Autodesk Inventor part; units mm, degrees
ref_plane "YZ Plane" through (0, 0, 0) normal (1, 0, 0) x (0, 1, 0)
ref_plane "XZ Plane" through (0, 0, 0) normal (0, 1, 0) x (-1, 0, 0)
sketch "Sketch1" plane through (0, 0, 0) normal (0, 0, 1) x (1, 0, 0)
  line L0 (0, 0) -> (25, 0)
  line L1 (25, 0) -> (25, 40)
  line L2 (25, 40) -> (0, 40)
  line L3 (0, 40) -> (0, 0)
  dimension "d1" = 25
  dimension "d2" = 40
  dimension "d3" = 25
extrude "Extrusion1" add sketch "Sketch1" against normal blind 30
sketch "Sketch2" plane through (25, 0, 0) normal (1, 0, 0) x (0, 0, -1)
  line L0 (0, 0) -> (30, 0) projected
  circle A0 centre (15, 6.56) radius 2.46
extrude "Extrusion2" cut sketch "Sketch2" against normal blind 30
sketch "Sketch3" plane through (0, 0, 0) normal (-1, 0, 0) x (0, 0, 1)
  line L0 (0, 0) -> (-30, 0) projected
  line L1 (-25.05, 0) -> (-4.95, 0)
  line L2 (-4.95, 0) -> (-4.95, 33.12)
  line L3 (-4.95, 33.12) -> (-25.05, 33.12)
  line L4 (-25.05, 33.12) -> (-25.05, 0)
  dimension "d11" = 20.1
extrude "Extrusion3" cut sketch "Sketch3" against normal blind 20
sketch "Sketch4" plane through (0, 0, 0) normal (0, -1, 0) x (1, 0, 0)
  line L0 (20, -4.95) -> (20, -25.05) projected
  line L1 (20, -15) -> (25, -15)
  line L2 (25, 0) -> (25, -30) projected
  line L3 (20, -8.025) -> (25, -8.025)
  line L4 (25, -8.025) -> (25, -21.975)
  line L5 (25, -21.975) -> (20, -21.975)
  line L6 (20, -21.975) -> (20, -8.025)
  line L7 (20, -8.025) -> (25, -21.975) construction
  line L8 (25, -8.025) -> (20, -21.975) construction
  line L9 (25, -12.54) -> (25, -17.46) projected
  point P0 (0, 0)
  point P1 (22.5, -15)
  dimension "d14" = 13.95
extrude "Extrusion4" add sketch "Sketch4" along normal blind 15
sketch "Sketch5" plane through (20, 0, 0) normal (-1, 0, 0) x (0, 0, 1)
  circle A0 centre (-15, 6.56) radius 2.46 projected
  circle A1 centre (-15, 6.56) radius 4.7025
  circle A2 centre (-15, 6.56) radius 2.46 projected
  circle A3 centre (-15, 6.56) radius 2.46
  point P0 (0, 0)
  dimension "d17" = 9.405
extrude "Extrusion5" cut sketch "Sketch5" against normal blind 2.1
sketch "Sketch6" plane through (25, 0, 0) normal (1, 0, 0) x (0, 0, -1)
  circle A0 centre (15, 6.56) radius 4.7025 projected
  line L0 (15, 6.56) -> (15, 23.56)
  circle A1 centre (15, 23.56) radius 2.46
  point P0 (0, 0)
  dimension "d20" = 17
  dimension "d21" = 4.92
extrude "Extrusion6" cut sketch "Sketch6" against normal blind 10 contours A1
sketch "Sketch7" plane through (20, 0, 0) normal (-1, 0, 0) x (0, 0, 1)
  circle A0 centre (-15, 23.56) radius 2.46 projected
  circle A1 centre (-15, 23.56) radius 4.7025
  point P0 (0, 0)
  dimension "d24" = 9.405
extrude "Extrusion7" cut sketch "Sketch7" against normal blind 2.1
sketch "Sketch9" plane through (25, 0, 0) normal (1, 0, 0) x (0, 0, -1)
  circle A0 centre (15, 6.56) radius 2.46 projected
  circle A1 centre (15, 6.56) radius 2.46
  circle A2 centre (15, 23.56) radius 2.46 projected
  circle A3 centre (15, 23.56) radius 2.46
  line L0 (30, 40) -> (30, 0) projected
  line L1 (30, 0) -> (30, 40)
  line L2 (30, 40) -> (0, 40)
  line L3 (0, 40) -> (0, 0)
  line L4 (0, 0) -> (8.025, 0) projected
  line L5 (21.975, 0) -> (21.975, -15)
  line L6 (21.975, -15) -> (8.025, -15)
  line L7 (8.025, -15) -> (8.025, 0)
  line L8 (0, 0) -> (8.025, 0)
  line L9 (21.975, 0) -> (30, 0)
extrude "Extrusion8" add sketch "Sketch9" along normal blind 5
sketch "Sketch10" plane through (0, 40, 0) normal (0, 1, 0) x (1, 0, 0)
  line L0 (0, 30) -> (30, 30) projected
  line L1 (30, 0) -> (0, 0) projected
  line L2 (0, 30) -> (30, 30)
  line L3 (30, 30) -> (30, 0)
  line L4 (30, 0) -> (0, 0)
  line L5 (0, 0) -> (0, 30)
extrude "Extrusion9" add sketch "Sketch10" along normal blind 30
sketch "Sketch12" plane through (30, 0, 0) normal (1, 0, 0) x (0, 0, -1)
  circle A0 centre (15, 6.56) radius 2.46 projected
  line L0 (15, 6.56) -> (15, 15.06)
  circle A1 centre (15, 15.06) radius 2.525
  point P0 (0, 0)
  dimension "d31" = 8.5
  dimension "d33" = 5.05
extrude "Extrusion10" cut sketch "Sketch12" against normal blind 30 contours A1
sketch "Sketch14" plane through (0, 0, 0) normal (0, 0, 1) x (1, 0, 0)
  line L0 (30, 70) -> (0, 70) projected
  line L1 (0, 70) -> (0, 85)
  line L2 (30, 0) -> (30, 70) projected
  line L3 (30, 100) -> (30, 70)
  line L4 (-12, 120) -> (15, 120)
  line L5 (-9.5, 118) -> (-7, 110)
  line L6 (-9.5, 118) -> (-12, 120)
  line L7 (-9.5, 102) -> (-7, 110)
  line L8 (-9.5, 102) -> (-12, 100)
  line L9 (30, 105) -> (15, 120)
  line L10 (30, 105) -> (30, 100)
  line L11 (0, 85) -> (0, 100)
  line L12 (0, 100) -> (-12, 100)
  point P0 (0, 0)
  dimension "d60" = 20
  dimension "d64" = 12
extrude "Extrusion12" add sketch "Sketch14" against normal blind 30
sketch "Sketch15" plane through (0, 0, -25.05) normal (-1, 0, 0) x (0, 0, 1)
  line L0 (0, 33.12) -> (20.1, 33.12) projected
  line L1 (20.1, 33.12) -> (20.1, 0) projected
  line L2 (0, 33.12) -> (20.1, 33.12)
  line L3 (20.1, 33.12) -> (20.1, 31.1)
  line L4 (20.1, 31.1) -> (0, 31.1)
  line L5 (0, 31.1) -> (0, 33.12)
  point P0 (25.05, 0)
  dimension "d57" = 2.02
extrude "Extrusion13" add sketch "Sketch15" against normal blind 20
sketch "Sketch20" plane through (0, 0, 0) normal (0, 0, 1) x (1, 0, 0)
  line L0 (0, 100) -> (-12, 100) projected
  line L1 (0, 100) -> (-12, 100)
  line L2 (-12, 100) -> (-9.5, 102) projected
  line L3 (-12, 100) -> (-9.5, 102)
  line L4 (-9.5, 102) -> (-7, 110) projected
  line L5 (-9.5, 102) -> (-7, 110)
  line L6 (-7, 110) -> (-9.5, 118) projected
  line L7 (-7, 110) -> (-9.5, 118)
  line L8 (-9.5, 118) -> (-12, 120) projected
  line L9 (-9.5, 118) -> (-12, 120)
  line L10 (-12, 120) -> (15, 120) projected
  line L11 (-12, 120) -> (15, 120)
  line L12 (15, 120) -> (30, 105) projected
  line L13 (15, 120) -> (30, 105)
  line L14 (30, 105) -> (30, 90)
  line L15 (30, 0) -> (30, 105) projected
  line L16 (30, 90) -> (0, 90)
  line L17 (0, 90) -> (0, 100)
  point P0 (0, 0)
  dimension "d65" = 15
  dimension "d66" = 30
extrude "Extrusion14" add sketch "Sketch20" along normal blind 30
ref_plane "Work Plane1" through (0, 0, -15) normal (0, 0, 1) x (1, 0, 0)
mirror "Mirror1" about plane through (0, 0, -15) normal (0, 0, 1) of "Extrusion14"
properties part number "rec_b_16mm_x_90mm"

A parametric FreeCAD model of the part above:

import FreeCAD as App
import Part
import Sketcher

doc = App.newDocument("Part")
body = doc.addObject("PartDesign::Body", "Body")

sketch1 = doc.addObject("Sketcher::SketchObject", "Sketch")
body.addObject(sketch1)
sketch1.AttachmentSupport = (doc.XY_Plane, [""])
sketch1.MapMode = "FlatFace"
sketch1.addGeometry([
    Part.LineSegment(App.Vector(0, 40, 0), App.Vector(0, 0, 0)),
    Part.LineSegment(App.Vector(0, 0, 0), App.Vector(25, 0, 0)),
    Part.LineSegment(App.Vector(25, 0, 0), App.Vector(25, 40, 0)),
    Part.LineSegment(App.Vector(25, 40, 0), App.Vector(0, 40, 0)),
], False)
sketch1.addConstraint([
    Sketcher.Constraint("Coincident", 0, 2, 1, 1),
    Sketcher.Constraint("Coincident", 1, 2, 2, 1),
    Sketcher.Constraint("Coincident", 2, 2, 3, 1),
    Sketcher.Constraint("Coincident", 3, 2, 0, 1),
    Sketcher.Constraint("Vertical", 0),
    Sketcher.Constraint("Horizontal", 1),
    Sketcher.Constraint("Vertical", 2),
    Sketcher.Constraint("Horizontal", 3),
    Sketcher.Constraint("Coincident", 0, 2, -1, 1),
    Sketcher.Constraint("DistanceX", 1, 1, 1, 2, 25.0),
    Sketcher.Constraint("DistanceY", 0, 2, 0, 1, 40.0),
])
pad1 = doc.addObject("PartDesign::Pad", "Pad")
body.addObject(pad1)
pad1.Profile = sketch1
pad1.Length = 30
pad1.Reversed = True

sketch2 = doc.addObject("Sketcher::SketchObject", "Sketch001")
body.addObject(sketch2)
sketch2.AttachmentSupport = (doc.YZ_Plane, [""])
sketch2.MapMode = "FlatFace"
sketch2.AttachmentOffset = App.Placement(App.Vector(0, 0, 25), App.Rotation())
sketch2.addGeometry(Part.Circle(App.Vector(6.6, -15, 0), App.Vector(0, 0, 1), 2.5), False)
sketch2.addConstraint([
    Sketcher.Constraint("Diameter", 0, 4.92),
    Sketcher.Constraint("DistanceY", 0, 3, -1, 1, 15.0),
    Sketcher.Constraint("DistanceX", -1, 1, 0, 3, 6.56),
])
pocket1 = doc.addObject("PartDesign::Pocket", "Pocket")
body.addObject(pocket1)
pocket1.Profile = sketch2
pocket1.Length = 30

sketch3 = doc.addObject("Sketcher::SketchObject", "Sketch002")
body.addObject(sketch3)
sketch3.AttachmentSupport = (doc.YZ_Plane, [""])
sketch3.MapMode = "FlatFace"
sketch3.addGeometry([
    Part.LineSegment(App.Vector(0, -25, 0), App.Vector(0, -5, 0)),
    Part.LineSegment(App.Vector(0, -5, 0), App.Vector(33, -5, 0)),
    Part.LineSegment(App.Vector(33, -5, 0), App.Vector(33, -25, 0)),
    Part.LineSegment(App.Vector(33, -25, 0), App.Vector(0, -25, 0)),
], False)
sketch3.addConstraint([
    Sketcher.Constraint("Coincident", 0, 2, 1, 1),
    Sketcher.Constraint("Coincident", 1, 2, 2, 1),
    Sketcher.Constraint("Coincident", 2, 2, 3, 1),
    Sketcher.Constraint("Coincident", 3, 2, 0, 1),
    Sketcher.Constraint("Vertical", 0),
    Sketcher.Constraint("Horizontal", 1),
    Sketcher.Constraint("Vertical", 2),
    Sketcher.Constraint("Horizontal", 3),
    Sketcher.Constraint("PointOnObject", 0, 2, -2),
    Sketcher.Constraint("DistanceY", 0, 1, 0, 2, 20.1),
    Sketcher.Constraint("DistanceX", 1, 1, 1, 2, 33.12),
    Sketcher.Constraint("DistanceY", 0, 2, -1, 1, 4.95),
])
pocket2 = doc.addObject("PartDesign::Pocket", "Pocket001")
body.addObject(pocket2)
pocket2.Profile = sketch3
pocket2.Length = 20
pocket2.Reversed = True

sketch4 = doc.addObject("Sketcher::SketchObject", "Sketch003")
body.addObject(sketch4)
sketch4.AttachmentSupport = (doc.XZ_Plane, [""])
sketch4.MapMode = "FlatFace"
sketch4.addGeometry([
    Part.LineSegment(App.Vector(25, -8, 0), App.Vector(20, -8, 0)),
    Part.LineSegment(App.Vector(20, -8, 0), App.Vector(20, -22, 0)),
    Part.LineSegment(App.Vector(20, -22, 0), App.Vector(25, -22, 0)),
    Part.LineSegment(App.Vector(25, -22, 0), App.Vector(25, -8, 0)),
], False)
sketch4.addConstraint([
    Sketcher.Constraint("Coincident", 0, 2, 1, 1),
    Sketcher.Constraint("Coincident", 1, 2, 2, 1),
    Sketcher.Constraint("Coincident", 2, 2, 3, 1),
    Sketcher.Constraint("Coincident", 3, 2, 0, 1),
    Sketcher.Constraint("Horizontal", 0),
    Sketcher.Constraint("Vertical", 1),
    Sketcher.Constraint("Horizontal", 2),
    Sketcher.Constraint("Vertical", 3),
    Sketcher.Constraint("DistanceY", 1, 2, 1, 1, 13.95),
    Sketcher.Constraint("DistanceX", 0, 2, 0, 1, 5.0),
    Sketcher.Constraint("DistanceX", -1, 1, 0, 2, 20.0),
    Sketcher.Constraint("DistanceY", 0, 2, -1, 1, 8.025),
])
pad2 = doc.addObject("PartDesign::Pad", "Pad001")
body.addObject(pad2)
pad2.Profile = sketch4
pad2.Length = 15

sketch5 = doc.addObject("Sketcher::SketchObject", "Sketch004")
body.addObject(sketch5)
sketch5.AttachmentSupport = (doc.YZ_Plane, [""])
sketch5.MapMode = "FlatFace"
sketch5.AttachmentOffset = App.Placement(App.Vector(0, 0, 20), App.Rotation())
sketch5.addGeometry([
    Part.Circle(App.Vector(6.6, -15, 0), App.Vector(0, 0, 1), 4.7),
    Part.Circle(App.Vector(6.6, -15, 0), App.Vector(0, 0, 1), 2.5),
], False)
sketch5.addConstraint([
    Sketcher.Constraint("Coincident", 1, 3, 0, 3),
    Sketcher.Constraint("Diameter", 0, 9.405),
    Sketcher.Constraint("Diameter", 1, 4.92),
    Sketcher.Constraint("DistanceY", 0, 3, -1, 1, 15.0),
    Sketcher.Constraint("DistanceX", -1, 1, 0, 3, 6.56),
])
pocket3 = doc.addObject("PartDesign::Pocket", "Pocket002")
body.addObject(pocket3)
pocket3.Profile = sketch5
pocket3.Length = 2.1
pocket3.Reversed = True

sketch6 = doc.addObject("Sketcher::SketchObject", "Sketch005")
body.addObject(sketch6)
sketch6.AttachmentSupport = (doc.YZ_Plane, [""])
sketch6.MapMode = "FlatFace"
sketch6.AttachmentOffset = App.Placement(App.Vector(0, 0, 25), App.Rotation())
sketch6.addGeometry(Part.Circle(App.Vector(23.6, -15, 0), App.Vector(0, 0, 1), 2.5), False)
sketch6.addConstraint([
    Sketcher.Constraint("Diameter", 0, 4.92),
    Sketcher.Constraint("DistanceY", 0, 3, -1, 1, 15.0),
    Sketcher.Constraint("DistanceX", -1, 1, 0, 3, 23.56),
])
pocket4 = doc.addObject("PartDesign::Pocket", "Pocket003")
body.addObject(pocket4)
pocket4.Profile = sketch6
pocket4.Length = 10

sketch7 = doc.addObject("Sketcher::SketchObject", "Sketch006")
body.addObject(sketch7)
sketch7.AttachmentSupport = (doc.YZ_Plane, [""])
sketch7.MapMode = "FlatFace"
sketch7.AttachmentOffset = App.Placement(App.Vector(0, 0, 20), App.Rotation())
sketch7.addGeometry([
    Part.Circle(App.Vector(23.6, -15, 0), App.Vector(0, 0, 1), 4.7),
    Part.Circle(App.Vector(23.6, -15, 0), App.Vector(0, 0, 1), 2.5),
], False)
sketch7.addConstraint([
    Sketcher.Constraint("Coincident", 1, 3, 0, 3),
    Sketcher.Constraint("Diameter", 0, 9.405),
    Sketcher.Constraint("Diameter", 1, 4.92),
    Sketcher.Constraint("DistanceY", 0, 3, -1, 1, 15.0),
    Sketcher.Constraint("DistanceX", -1, 1, 0, 3, 23.56),
])
pocket5 = doc.addObject("PartDesign::Pocket", "Pocket004")
body.addObject(pocket5)
pocket5.Profile = sketch7
pocket5.Length = 2.1
pocket5.Reversed = True

sketch8 = doc.addObject("Sketcher::SketchObject", "Sketch007")
body.addObject(sketch8)
sketch8.AttachmentSupport = (doc.YZ_Plane, [""])
sketch8.MapMode = "FlatFace"
sketch8.AttachmentOffset = App.Placement(App.Vector(0, 0, 25), App.Rotation())
sketch8.addGeometry([
    Part.LineSegment(App.Vector(0, -30, 0), App.Vector(40, -30, 0)),
    Part.LineSegment(App.Vector(40, -30, 0), App.Vector(40, 0, 0)),
    Part.LineSegment(App.Vector(40, 0, 0), App.Vector(0, 0, 0)),
    Part.LineSegment(App.Vector(0, 0, 0), App.Vector(0, -8, 0)),
    Part.LineSegment(App.Vector(0, -8, 0), App.Vector(-15, -8, 0)),
    Part.LineSegment(App.Vector(-15, -8, 0), App.Vector(-15, -22, 0)),
    Part.LineSegment(App.Vector(-15, -22, 0), App.Vector(0, -22, 0)),
    Part.LineSegment(App.Vector(0, -22, 0), App.Vector(0, -30, 0)),
    Part.Circle(App.Vector(6.6, -15, 0), App.Vector(0, 0, 1), 2.5),
    Part.Circle(App.Vector(23.6, -15, 0), App.Vector(0, 0, 1), 2.5),
], False)
sketch8.addConstraint([
    Sketcher.Constraint("Coincident", 0, 2, 1, 1),
    Sketcher.Constraint("Coincident", 1, 2, 2, 1),
    Sketcher.Constraint("Coincident", 2, 2, 3, 1),
    Sketcher.Constraint("Coincident", 3, 2, 4, 1),
    Sketcher.Constraint("Coincident", 4, 2, 5, 1),
    Sketcher.Constraint("Coincident", 5, 2, 6, 1),
    Sketcher.Constraint("Coincident", 6, 2, 7, 1),
    Sketcher.Constraint("Coincident", 7, 2, 0, 1),
    Sketcher.Constraint("Horizontal", 0),
    Sketcher.Constraint("Vertical", 1),
    Sketcher.Constraint("Horizontal", 2),
    Sketcher.Constraint("Vertical", 3),
    Sketcher.Constraint("Horizontal", 4),
    Sketcher.Constraint("Vertical", 5),
    Sketcher.Constraint("Horizontal", 6),
    Sketcher.Constraint("Vertical", 7),
    Sketcher.Constraint("Coincident", 2, 2, -1, 1),
    Sketcher.Constraint("Equal", 8, 9),
    Sketcher.Constraint("PointOnObject", 6, 2, -2),
    Sketcher.Constraint("Horizontal", 8, 3, 9, 3),
    Sketcher.Constraint("Equal", 3, 7),
    Sketcher.Constraint("Diameter", 8, 4.92),
    Sketcher.Constraint("DistanceX", 0, 1, 0, 2, 40.0),
    Sketcher.Constraint("DistanceX", 4, 2, 4, 1, 15.0),
    Sketcher.Constraint("DistanceY", 1, 1, 1, 2, 30.0),
    Sketcher.Constraint("DistanceY", 8, 3, -1, 1, 15.0),
    Sketcher.Constraint("DistanceX", 8, 3, 9, 3, 17.0),
    Sketcher.Constraint("DistanceY", 5, 2, 5, 1, 13.95),
    Sketcher.Constraint("DistanceX", -1, 1, 8, 3, 6.56),
])
pad3 = doc.addObject("PartDesign::Pad", "Pad002")
body.addObject(pad3)
pad3.Profile = sketch8
pad3.Length = 5

sketch9 = doc.addObject("Sketcher::SketchObject", "Sketch008")
body.addObject(sketch9)
sketch9.AttachmentSupport = (doc.XZ_Plane, [""])
sketch9.MapMode = "FlatFace"
sketch9.AttachmentOffset = App.Placement(App.Vector(0, 0, -40), App.Rotation())
sketch9.addGeometry([
    Part.LineSegment(App.Vector(30, -30, 0), App.Vector(0, -30, 0)),
    Part.LineSegment(App.Vector(0, -30, 0), App.Vector(0, 0, 0)),
    Part.LineSegment(App.Vector(0, 0, 0), App.Vector(30, 0, 0)),
    Part.LineSegment(App.Vector(30, 0, 0), App.Vector(30, -30, 0)),
], False)
sketch9.addConstraint([
    Sketcher.Constraint("Coincident", 0, 2, 1, 1),
    Sketcher.Constraint("Coincident", 1, 2, 2, 1),
    Sketcher.Constraint("Coincident", 2, 2, 3, 1),
    Sketcher.Constraint("Coincident", 3, 2, 0, 1),
    Sketcher.Constraint("Horizontal", 0),
    Sketcher.Constraint("Vertical", 1),
    Sketcher.Constraint("Horizontal", 2),
    Sketcher.Constraint("Vertical", 3),
    Sketcher.Constraint("Coincident", 1, 2, -1, 1),
    Sketcher.Constraint("Equal", 2, 1),
    Sketcher.Constraint("DistanceX", 0, 2, 0, 1, 30.0),
])
pad4 = doc.addObject("PartDesign::Pad", "Pad003")
body.addObject(pad4)
pad4.Profile = sketch9
pad4.Length = 30
pad4.Reversed = True

sketch10 = doc.addObject("Sketcher::SketchObject", "Sketch009")
body.addObject(sketch10)
sketch10.AttachmentSupport = (doc.YZ_Plane, [""])
sketch10.MapMode = "FlatFace"
sketch10.AttachmentOffset = App.Placement(App.Vector(0, 0, 30), App.Rotation())
sketch10.addGeometry(Part.Circle(App.Vector(15.1, -15, 0), App.Vector(0, 0, 1), 2.5), False)
sketch10.addConstraint([
    Sketcher.Constraint("Diameter", 0, 5.05),
    Sketcher.Constraint("DistanceY", 0, 3, -1, 1, 15.0),
    Sketcher.Constraint("DistanceX", -1, 1, 0, 3, 15.06),
])
pocket6 = doc.addObject("PartDesign::Pocket", "Pocket005")
body.addObject(pocket6)
pocket6.Profile = sketch10
pocket6.Length = 30

sketch11 = doc.addObject("Sketcher::SketchObject", "Sketch010")
body.addObject(sketch11)
sketch11.AttachmentSupport = (doc.XY_Plane, [""])
sketch11.MapMode = "FlatFace"
sketch11.addGeometry([
    Part.LineSegment(App.Vector(0, 70, 0), App.Vector(30, 70, 0)),
    Part.LineSegment(App.Vector(30, 70, 0), App.Vector(30, 105, 0)),
    Part.LineSegment(App.Vector(30, 105, 0), App.Vector(15, 120, 0)),
    Part.LineSegment(App.Vector(15, 120, 0), App.Vector(-12, 120, 0)),
    Part.LineSegment(App.Vector(-12, 120, 0), App.Vector(-9.5, 118, 0)),
    Part.LineSegment(App.Vector(-9.5, 118, 0), App.Vector(-7, 110, 0)),
    Part.LineSegment(App.Vector(-7, 110, 0), App.Vector(-9.5, 102, 0)),
    Part.LineSegment(App.Vector(-9.5, 102, 0), App.Vector(-12, 100, 0)),
    Part.LineSegment(App.Vector(-12, 100, 0), App.Vector(0, 100, 0)),
    Part.LineSegment(App.Vector(0, 100, 0), App.Vector(0, 70, 0)),
], False)
sketch11.addConstraint([
    Sketcher.Constraint("Coincident", 0, 2, 1, 1),
    Sketcher.Constraint("Coincident", 1, 2, 2, 1),
    Sketcher.Constraint("Coincident", 2, 2, 3, 1),
    Sketcher.Constraint("Coincident", 3, 2, 4, 1),
    Sketcher.Constraint("Coincident", 4, 2, 5, 1),
    Sketcher.Constraint("Coincident", 5, 2, 6, 1),
    Sketcher.Constraint("Coincident", 6, 2, 7, 1),
    Sketcher.Constraint("Coincident", 7, 2, 8, 1),
    Sketcher.Constraint("Coincident", 8, 2, 9, 1),
    Sketcher.Constraint("Coincident", 9, 2, 0, 1),
    Sketcher.Constraint("Horizontal", 0),
    Sketcher.Constraint("Vertical", 1),
    Sketcher.Constraint("Horizontal", 3),
    Sketcher.Constraint("Horizontal", 8),
    Sketcher.Constraint("Vertical", 9),
    Sketcher.Constraint("PointOnObject", 8, 2, -2),
    Sketcher.Constraint("Vertical", 4, 2, 6, 2),
    Sketcher.Constraint("Vertical", 3, 2, 7, 2),
    Sketcher.Constraint("Equal", 0, 9),
    Sketcher.Constraint("Equal", 5, 6),
    Sketcher.Constraint("Equal", 4, 7),
    Sketcher.Constraint("DistanceX", 8, 1, 8, 2, 12.0),
    Sketcher.Constraint("DistanceY", 7, 2, 3, 2, 20.0),
    Sketcher.Constraint("DistanceX", 0, 1, 0, 2, 30.0),
    Sketcher.Constraint("DistanceX", 3, 2, 3, 1, 27.0),
    Sketcher.Constraint("DistanceY", 1, 1, 1, 2, 35.0),
    Sketcher.Constraint("DistanceY", -1, 1, 0, 2, 70.0),
    Sketcher.Constraint("DistanceY", -1, 1, 4, 2, 118.0),
    Sketcher.Constraint("DistanceX", 5, 2, -1, 1, 7.0),
    Sketcher.Constraint("DistanceX", 4, 2, -1, 1, 9.5),
])
pad5 = doc.addObject("PartDesign::Pad", "Pad004")
body.addObject(pad5)
pad5.Profile = sketch11
pad5.Length = 30
pad5.Reversed = True

sketch12 = doc.addObject("Sketcher::SketchObject", "Sketch011")
body.addObject(sketch12)
sketch12.AttachmentSupport = (doc.YZ_Plane, [""])
sketch12.MapMode = "FlatFace"
sketch12.addGeometry([
    Part.LineSegment(App.Vector(33.1, -5, 0), App.Vector(33.1, -25.1, 0)),
    Part.LineSegment(App.Vector(33.1, -25.1, 0), App.Vector(31.1, -25.1, 0)),
    Part.LineSegment(App.Vector(31.1, -25.1, 0), App.Vector(31.1, -5, 0)),
    Part.LineSegment(App.Vector(31.1, -5, 0), App.Vector(33.1, -5, 0)),
], False)
sketch12.addConstraint([
    Sketcher.Constraint("Coincident", 0, 2, 1, 1),
    Sketcher.Constraint("Coincident", 1, 2, 2, 1),
    Sketcher.Constraint("Coincident", 2, 2, 3, 1),
    Sketcher.Constraint("Coincident", 3, 2, 0, 1),
    Sketcher.Constraint("Vertical", 0),
    Sketcher.Constraint("Horizontal", 1),
    Sketcher.Constraint("Vertical", 2),
    Sketcher.Constraint("Horizontal", 3),
    Sketcher.Constraint("DistanceX", 1, 2, 1, 1, 2.02),
    Sketcher.Constraint("DistanceY", 0, 2, 0, 1, 20.1),
    Sketcher.Constraint("DistanceX", -1, 1, 1, 2, 31.1),
    Sketcher.Constraint("DistanceY", 0, 2, -1, 1, 25.05),
])
pad6 = doc.addObject("PartDesign::Pad", "Pad005")
body.addObject(pad6)
pad6.Profile = sketch12
pad6.Length = 20

sketch13 = doc.addObject("Sketcher::SketchObject", "Sketch012")
body.addObject(sketch13)
sketch13.AttachmentSupport = (doc.XY_Plane, [""])
sketch13.MapMode = "FlatFace"
sketch13.addGeometry([
    Part.LineSegment(App.Vector(-12, 100, 0), App.Vector(0, 100, 0)),
    Part.LineSegment(App.Vector(0, 100, 0), App.Vector(0, 90, 0)),
    Part.LineSegment(App.Vector(0, 90, 0), App.Vector(30, 90, 0)),
    Part.LineSegment(App.Vector(30, 90, 0), App.Vector(30, 105, 0)),
    Part.LineSegment(App.Vector(30, 105, 0), App.Vector(15, 120, 0)),
    Part.LineSegment(App.Vector(15, 120, 0), App.Vector(-12, 120, 0)),
    Part.LineSegment(App.Vector(-12, 120, 0), App.Vector(-9.5, 118, 0)),
    Part.LineSegment(App.Vector(-9.5, 118, 0), App.Vector(-7, 110, 0)),
    Part.LineSegment(App.Vector(-7, 110, 0), App.Vector(-9.5, 102, 0)),
    Part.LineSegment(App.Vector(-9.5, 102, 0), App.Vector(-12, 100, 0)),
], False)
sketch13.addConstraint([
    Sketcher.Constraint("Coincident", 0, 2, 1, 1),
    Sketcher.Constraint("Coincident", 1, 2, 2, 1),
    Sketcher.Constraint("Coincident", 2, 2, 3, 1),
    Sketcher.Constraint("Coincident", 3, 2, 4, 1),
    Sketcher.Constraint("Coincident", 4, 2, 5, 1),
    Sketcher.Constraint("Coincident", 5, 2, 6, 1),
    Sketcher.Constraint("Coincident", 6, 2, 7, 1),
    Sketcher.Constraint("Coincident", 7, 2, 8, 1),
    Sketcher.Constraint("Coincident", 8, 2, 9, 1),
    Sketcher.Constraint("Coincident", 9, 2, 0, 1),
    Sketcher.Constraint("Horizontal", 0),
    Sketcher.Constraint("Vertical", 1),
    Sketcher.Constraint("Horizontal", 2),
    Sketcher.Constraint("Vertical", 3),
    Sketcher.Constraint("Horizontal", 5),
    Sketcher.Constraint("PointOnObject", 0, 2, -2),
    Sketcher.Constraint("Vertical", 6, 2, 8, 2),
    Sketcher.Constraint("Vertical", 5, 2, 9, 2),
    Sketcher.Constraint("Equal", 7, 8),
    Sketcher.Constraint("Equal", 6, 9),
    Sketcher.Constraint("DistanceX", 2, 1, 2, 2, 30.0),
    Sketcher.Constraint("DistanceY", 3, 1, 3, 2, 15.0),
    Sketcher.Constraint("DistanceX", -1, 1, 4, 2, 15.0),
    Sketcher.Constraint("DistanceY", 3, 2, 4, 2, 15.0),
    Sketcher.Constraint("DistanceX", 0, 1, 0, 2, 12.0),
    Sketcher.Constraint("DistanceY", 1, 2, 1, 1, 10.0),
    Sketcher.Constraint("DistanceY", -1, 1, 0, 2, 100.0),
    Sketcher.Constraint("DistanceY", -1, 1, 6, 2, 118.0),
    Sketcher.Constraint("DistanceX", 7, 2, -1, 1, 7.0),
    Sketcher.Constraint("DistanceX", 6, 2, -1, 1, 9.5),
])
pad7 = doc.addObject("PartDesign::Pad", "Pad006")
body.addObject(pad7)
pad7.Profile = sketch13
pad7.Length = 30
doc.recompute()

datumplane = doc.addObject("PartDesign::Plane", "DatumPlane")
body.addObject(datumplane)
datumplane.AttachmentSupport = (doc.XY_Plane, [""])
datumplane.MapMode = "FlatFace"
datumplane.AttachmentOffset = App.Placement(App.Vector(0, 0, -15), App.Rotation())
mirrored = doc.addObject("PartDesign::Mirrored", "Mirrored")
body.addObject(mirrored)
mirrored.Originals = [pad7]
mirrored.MirrorPlane = (datumplane, [""])
body.Tip = mirrored

doc.recompute()
